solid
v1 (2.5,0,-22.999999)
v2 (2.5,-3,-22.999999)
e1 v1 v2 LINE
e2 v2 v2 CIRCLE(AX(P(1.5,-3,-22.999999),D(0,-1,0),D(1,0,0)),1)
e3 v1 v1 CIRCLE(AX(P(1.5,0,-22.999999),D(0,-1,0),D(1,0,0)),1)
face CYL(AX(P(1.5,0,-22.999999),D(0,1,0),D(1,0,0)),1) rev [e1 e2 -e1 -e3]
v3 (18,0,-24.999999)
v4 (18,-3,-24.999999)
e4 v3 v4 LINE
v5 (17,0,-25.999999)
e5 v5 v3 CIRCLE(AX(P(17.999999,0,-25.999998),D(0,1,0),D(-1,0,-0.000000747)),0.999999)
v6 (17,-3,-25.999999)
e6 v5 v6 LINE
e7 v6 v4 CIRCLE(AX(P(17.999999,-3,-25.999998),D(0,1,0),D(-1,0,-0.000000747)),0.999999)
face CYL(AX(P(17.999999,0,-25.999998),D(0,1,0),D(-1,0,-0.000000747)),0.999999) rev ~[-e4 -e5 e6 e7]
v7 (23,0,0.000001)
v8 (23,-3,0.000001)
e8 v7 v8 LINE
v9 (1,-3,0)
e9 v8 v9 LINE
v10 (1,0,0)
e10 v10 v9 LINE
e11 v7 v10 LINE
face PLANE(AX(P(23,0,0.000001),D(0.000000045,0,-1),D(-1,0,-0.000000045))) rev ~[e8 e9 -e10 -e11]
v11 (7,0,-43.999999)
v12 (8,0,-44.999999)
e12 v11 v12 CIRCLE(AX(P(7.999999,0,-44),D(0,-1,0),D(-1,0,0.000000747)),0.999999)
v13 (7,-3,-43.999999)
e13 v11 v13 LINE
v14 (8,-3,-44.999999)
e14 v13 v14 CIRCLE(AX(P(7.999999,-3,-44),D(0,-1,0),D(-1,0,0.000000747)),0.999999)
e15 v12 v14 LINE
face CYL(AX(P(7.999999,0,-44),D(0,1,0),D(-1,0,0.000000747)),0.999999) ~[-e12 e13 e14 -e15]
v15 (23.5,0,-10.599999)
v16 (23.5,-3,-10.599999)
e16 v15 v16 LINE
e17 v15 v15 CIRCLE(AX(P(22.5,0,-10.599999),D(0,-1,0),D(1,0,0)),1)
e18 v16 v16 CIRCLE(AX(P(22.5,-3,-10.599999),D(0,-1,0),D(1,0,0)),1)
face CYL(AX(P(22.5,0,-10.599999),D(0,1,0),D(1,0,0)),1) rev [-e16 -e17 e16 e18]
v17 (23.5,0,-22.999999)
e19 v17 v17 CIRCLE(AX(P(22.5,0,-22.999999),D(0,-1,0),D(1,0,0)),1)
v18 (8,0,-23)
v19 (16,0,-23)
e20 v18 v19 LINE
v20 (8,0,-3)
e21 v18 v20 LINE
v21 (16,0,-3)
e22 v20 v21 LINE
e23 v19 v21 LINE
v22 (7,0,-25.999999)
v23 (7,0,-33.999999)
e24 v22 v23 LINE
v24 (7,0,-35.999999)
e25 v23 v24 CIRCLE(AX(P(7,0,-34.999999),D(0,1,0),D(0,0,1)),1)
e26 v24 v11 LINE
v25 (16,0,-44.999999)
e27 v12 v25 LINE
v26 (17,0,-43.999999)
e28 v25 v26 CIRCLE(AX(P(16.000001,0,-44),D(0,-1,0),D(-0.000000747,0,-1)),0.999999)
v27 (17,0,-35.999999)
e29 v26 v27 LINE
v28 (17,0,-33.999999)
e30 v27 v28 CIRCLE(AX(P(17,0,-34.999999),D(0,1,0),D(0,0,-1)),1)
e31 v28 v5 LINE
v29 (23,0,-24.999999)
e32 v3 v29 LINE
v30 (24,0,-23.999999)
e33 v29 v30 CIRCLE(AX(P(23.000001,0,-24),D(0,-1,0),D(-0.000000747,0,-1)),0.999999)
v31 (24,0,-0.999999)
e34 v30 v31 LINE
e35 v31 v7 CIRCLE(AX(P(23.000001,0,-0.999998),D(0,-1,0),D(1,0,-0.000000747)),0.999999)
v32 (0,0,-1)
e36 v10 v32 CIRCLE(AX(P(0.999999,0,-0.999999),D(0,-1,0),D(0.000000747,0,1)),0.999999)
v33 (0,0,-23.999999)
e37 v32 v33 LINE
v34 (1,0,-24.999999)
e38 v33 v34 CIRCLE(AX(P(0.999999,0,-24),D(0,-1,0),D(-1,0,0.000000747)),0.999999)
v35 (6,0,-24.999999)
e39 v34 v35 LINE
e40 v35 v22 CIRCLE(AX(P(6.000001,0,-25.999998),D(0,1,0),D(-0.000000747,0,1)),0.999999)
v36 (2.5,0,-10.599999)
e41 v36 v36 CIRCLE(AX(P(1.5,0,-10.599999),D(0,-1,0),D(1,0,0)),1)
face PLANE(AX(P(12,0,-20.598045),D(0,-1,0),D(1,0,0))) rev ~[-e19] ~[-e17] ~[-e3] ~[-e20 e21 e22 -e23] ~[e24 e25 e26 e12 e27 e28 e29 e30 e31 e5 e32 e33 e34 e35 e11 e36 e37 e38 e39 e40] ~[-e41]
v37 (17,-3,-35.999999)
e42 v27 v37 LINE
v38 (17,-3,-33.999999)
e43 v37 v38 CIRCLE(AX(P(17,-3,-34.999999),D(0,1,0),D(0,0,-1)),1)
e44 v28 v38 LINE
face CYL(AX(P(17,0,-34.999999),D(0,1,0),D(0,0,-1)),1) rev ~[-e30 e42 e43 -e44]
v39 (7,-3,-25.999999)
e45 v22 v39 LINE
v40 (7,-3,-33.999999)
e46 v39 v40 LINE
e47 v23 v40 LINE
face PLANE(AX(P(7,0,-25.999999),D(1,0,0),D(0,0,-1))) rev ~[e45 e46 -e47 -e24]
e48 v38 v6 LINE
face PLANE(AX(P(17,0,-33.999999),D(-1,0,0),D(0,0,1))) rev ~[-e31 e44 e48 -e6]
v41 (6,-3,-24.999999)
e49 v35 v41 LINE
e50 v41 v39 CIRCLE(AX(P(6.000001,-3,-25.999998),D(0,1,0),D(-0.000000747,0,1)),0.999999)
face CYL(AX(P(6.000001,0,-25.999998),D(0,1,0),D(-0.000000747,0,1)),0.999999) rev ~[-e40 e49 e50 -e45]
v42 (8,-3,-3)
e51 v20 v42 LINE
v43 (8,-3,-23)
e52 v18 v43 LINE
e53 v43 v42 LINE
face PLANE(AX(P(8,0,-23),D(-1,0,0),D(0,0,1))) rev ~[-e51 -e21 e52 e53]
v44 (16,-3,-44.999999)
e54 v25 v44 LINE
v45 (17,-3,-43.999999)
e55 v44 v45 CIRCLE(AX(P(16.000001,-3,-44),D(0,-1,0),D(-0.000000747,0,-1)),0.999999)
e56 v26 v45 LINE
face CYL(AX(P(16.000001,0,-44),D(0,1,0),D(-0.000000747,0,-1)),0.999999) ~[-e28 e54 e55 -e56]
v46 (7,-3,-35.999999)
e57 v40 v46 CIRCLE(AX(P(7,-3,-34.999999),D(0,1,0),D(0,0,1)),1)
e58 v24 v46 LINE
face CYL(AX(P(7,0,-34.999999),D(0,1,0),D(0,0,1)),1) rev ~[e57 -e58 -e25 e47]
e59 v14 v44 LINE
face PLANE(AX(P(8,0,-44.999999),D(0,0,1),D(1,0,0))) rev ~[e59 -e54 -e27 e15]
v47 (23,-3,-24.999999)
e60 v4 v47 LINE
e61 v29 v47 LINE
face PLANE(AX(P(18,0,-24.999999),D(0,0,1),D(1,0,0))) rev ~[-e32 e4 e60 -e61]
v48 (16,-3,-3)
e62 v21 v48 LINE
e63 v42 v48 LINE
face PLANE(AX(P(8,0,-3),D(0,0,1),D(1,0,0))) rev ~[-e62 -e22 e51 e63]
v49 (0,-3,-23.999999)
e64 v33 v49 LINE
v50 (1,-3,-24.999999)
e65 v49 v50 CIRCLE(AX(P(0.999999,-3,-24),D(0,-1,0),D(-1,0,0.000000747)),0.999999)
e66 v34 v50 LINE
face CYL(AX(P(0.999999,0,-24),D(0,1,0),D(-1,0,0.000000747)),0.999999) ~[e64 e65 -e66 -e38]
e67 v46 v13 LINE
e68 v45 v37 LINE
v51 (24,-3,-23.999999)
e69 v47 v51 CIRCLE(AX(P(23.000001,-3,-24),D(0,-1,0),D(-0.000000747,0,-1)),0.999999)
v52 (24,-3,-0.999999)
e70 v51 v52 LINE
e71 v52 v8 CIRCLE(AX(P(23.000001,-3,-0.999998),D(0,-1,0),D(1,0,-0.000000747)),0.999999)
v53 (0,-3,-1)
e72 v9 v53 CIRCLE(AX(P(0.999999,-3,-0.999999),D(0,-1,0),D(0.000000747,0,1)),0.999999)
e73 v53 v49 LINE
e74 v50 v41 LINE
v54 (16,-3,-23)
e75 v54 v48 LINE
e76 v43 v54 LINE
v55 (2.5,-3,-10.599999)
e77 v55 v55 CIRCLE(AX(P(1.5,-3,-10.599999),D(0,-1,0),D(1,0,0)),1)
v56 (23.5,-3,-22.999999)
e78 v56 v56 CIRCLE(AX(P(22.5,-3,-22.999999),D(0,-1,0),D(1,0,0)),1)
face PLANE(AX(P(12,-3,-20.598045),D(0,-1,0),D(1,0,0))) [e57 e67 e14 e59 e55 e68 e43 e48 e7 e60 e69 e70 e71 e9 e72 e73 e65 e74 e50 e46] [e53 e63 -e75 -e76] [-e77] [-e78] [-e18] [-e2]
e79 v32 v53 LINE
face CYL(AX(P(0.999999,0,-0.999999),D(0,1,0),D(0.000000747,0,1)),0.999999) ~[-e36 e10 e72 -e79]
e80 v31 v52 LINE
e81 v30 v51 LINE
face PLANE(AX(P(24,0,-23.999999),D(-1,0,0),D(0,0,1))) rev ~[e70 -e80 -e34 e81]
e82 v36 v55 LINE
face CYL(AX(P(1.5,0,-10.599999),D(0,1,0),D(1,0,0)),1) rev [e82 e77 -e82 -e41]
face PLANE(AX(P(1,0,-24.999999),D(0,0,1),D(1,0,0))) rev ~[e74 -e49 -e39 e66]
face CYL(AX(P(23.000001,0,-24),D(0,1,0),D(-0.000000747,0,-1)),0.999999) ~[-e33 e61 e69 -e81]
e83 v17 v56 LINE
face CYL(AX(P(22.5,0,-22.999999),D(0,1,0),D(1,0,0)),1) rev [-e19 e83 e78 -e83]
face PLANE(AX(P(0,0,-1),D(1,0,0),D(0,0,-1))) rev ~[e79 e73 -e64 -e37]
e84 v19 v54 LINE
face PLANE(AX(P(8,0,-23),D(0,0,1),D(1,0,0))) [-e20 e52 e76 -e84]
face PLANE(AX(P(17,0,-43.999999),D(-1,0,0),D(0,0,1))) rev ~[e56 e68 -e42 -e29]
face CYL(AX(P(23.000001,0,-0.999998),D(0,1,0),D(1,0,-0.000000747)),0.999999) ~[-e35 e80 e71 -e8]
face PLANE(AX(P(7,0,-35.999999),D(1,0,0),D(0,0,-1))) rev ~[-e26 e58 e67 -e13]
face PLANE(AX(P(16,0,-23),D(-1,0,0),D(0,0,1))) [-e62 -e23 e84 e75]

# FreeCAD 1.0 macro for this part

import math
import FreeCAD as App
import Part
import Sketcher
from FreeCAD import Vector
Q = App.Units.Quantity


def add_polygon(sketch, points):
    """Adds a closed chain of lines whose ends are joined by coincident constraints."""
    first, n = sketch.GeometryCount, len(points)
    for a, b in zip(points, points[1:] + points[:1]):
        sketch.addGeometry(Part.LineSegment(App.Vector(*a, 0), App.Vector(*b, 0)), False)
    for i in range(n):
        sketch.addConstraint(Sketcher.Constraint("Coincident", first + i, 2, first + (i + 1) % n, 1))

doc = App.newDocument("Part")
body = doc.addObject("PartDesign::Body", "Body")

sketch1 = doc.addObject("Sketcher::SketchObject", "Sketch")
body.addObject(sketch1)
sketch1.AttachmentSupport = (doc.XZ_Plane, [""])
sketch1.MapMode = "FlatFace"
sketch1.addGeometry(Part.LineSegment(Vector(23, 0.000001, 0), Vector(1, 0, 0)), False)
sketch1.addGeometry(Part.ArcOfCircle(Part.Circle(Vector(0.999999, -0.999999, 0), Vector(0, 0, 1), 0.999999), math.radians(89.999957), math.radians(180.000043)), False)
sketch1.addGeometry(Part.LineSegment(Vector(0, -1, 0), Vector(0, -23.999999, 0)), False)
sketch1.addGeometry(Part.ArcOfCircle(Part.Circle(Vector(0.999999, -24, 0), Vector(0, 0, 1), 0.999999), math.radians(179.999957), math.radians(270.000043)), False)
sketch1.addGeometry(Part.LineSegment(Vector(1, -24.999999, 0), Vector(6, -24.999999, 0)), False)
sketch1.addGeometry(Part.ArcOfCircle(Part.Circle(Vector(6.000001, -25.999998, 0), Vector(0, 0, 1), 0.999999), math.radians(-0.000043), math.radians(90.000043)), False)
sketch1.addGeometry(Part.LineSegment(Vector(7, -25.999999, 0), Vector(7, -33.999999, 0)), False)
sketch1.addGeometry(Part.ArcOfCircle(Part.Circle(Vector(7, -34.999999, 0), Vector(0, 0, 1), 1), math.radians(-90), math.radians(90)), False)
sketch1.addGeometry(Part.LineSegment(Vector(7, -35.999999, 0), Vector(7, -43.999999, 0)), False)
sketch1.addGeometry(Part.ArcOfCircle(Part.Circle(Vector(7.999999, -44, 0), Vector(0, 0, 1), 0.999999), math.radians(179.999957), math.radians(270.000043)), False)
sketch1.addGeometry(Part.LineSegment(Vector(8, -44.999999, 0), Vector(16, -44.999999, 0)), False)
sketch1.addGeometry(Part.ArcOfCircle(Part.Circle(Vector(16.000001, -44, 0), Vector(0, 0, 1), 0.999999), math.radians(-90.000043), math.radians(0.000043)), False)
sketch1.addGeometry(Part.LineSegment(Vector(17, -43.999999, 0), Vector(17, -35.999999, 0)), False)
sketch1.addGeometry(Part.ArcOfCircle(Part.Circle(Vector(17, -34.999999, 0), Vector(0, 0, 1), 1), math.radians(90), math.radians(270)), False)
sketch1.addGeometry(Part.LineSegment(Vector(17, -33.999999, 0), Vector(17, -25.999999, 0)), False)
sketch1.addGeometry(Part.ArcOfCircle(Part.Circle(Vector(17.999999, -25.999998, 0), Vector(0, 0, 1), 0.999999), math.radians(89.999957), math.radians(180.000043)), False)
sketch1.addGeometry(Part.LineSegment(Vector(18, -24.999999, 0), Vector(23, -24.999999, 0)), False)
sketch1.addGeometry(Part.ArcOfCircle(Part.Circle(Vector(23.000001, -24, 0), Vector(0, 0, 1), 0.999999), math.radians(-90.000043), math.radians(0.000043)), False)
sketch1.addGeometry(Part.LineSegment(Vector(24, -23.999999, 0), Vector(24, -0.999999, 0)), False)
sketch1.addGeometry(Part.ArcOfCircle(Part.Circle(Vector(23.000001, -0.999998, 0), Vector(0, 0, 1), 0.999999), math.radians(-0.000043), math.radians(90.000043)), False)
sketch1.addGeometry(Part.Circle(Vector(1.5, -22.999999, 0), Vector(0, 0, 1), 1), False)
sketch1.addGeometry(Part.Circle(Vector(22.5, -22.999999, 0), Vector(0, 0, 1), 1), False)
sketch1.addGeometry(Part.Circle(Vector(1.5, -10.599999, 0), Vector(0, 0, 1), 1), False)
add_polygon(sketch1, [(16, -23), (8, -23), (8, -3), (16, -3)])
sketch1.addGeometry(Part.Circle(Vector(22.5, -10.599999, 0), Vector(0, 0, 1), 1), False)
sketch1.addConstraint([
    Sketcher.Constraint("Tangent", 0, 2, 1, 1),
    Sketcher.Constraint("Tangent", 1, 2, 2, 1),
    Sketcher.Constraint("Tangent", 2, 2, 3, 1),
    Sketcher.Constraint("Tangent", 3, 2, 4, 1),
    Sketcher.Constraint("Tangent", 4, 2, 5, 2),
    Sketcher.Constraint("Tangent", 5, 1, 6, 1),
    Sketcher.Constraint("Coincident", 6, 2, 7, 2),
    Sketcher.Constraint("Coincident", 7, 1, 8, 1),
    Sketcher.Constraint("Tangent", 8, 2, 9, 1),
    Sketcher.Constraint("Tangent", 9, 2, 10, 1),
    Sketcher.Constraint("Tangent", 10, 2, 11, 1),
    Sketcher.Constraint("Tangent", 11, 2, 12, 1),
    Sketcher.Constraint("Coincident", 12, 2, 13, 2),
    Sketcher.Constraint("Coincident", 13, 1, 14, 1),
    Sketcher.Constraint("Tangent", 14, 2, 15, 2),
    Sketcher.Constraint("Tangent", 15, 1, 16, 1),
    Sketcher.Constraint("Tangent", 16, 2, 17, 1),
    Sketcher.Constraint("Tangent", 17, 2, 18, 1),
    Sketcher.Constraint("Tangent", 18, 2, 19, 1),
    Sketcher.Constraint("Tangent", 19, 2, 0, 1),
    Sketcher.Constraint("Horizontal", 0),
    Sketcher.Constraint("Vertical", 2),
    Sketcher.Constraint("Horizontal", 4),
    Sketcher.Constraint("Vertical", 6),
    Sketcher.Constraint("Vertical", 8),
    Sketcher.Constraint("Horizontal", 10),
    Sketcher.Constraint("Vertical", 12),
    Sketcher.Constraint("Vertical", 14),
    Sketcher.Constraint("Horizontal", 16),
    Sketcher.Constraint("Vertical", 18),
    Sketcher.Constraint("Horizontal", 23),
    Sketcher.Constraint("Vertical", 24),
    Sketcher.Constraint("Horizontal", 25),
    Sketcher.Constraint("Vertical", 26),
    Sketcher.Constraint("Equal", 1, 3),
    Sketcher.Constraint("Equal", 3, 5),
    Sketcher.Constraint("Equal", 5, 7),
    Sketcher.Constraint("Equal", 7, 9),
    Sketcher.Constraint("Equal", 9, 11),
    Sketcher.Constraint("Equal", 11, 13),
    Sketcher.Constraint("Equal", 13, 15),
    Sketcher.Constraint("Equal", 15, 17),
    Sketcher.Constraint("Equal", 17, 19),
    Sketcher.Constraint("Equal", 19, 20),
    Sketcher.Constraint("Equal", 20, 21),
    Sketcher.Constraint("Equal", 21, 22),
    Sketcher.Constraint("Equal", 22, 27),
    Sketcher.Constraint("PointOnObject", 0, 2, -1),
    Sketcher.Constraint("PointOnObject", 1, 2, -2),
    Sketcher.Constraint("Horizontal", 7, 3, 13, 3),
    Sketcher.Constraint("Horizontal", 5, 3, 15, 3),
    Sketcher.Constraint("Horizontal", 20, 3, 21, 3),
    Sketcher.Constraint("Horizontal", 22, 3, 27, 3),
    Sketcher.Constraint("Horizontal", 21, 3, 23, 2),
    Sketcher.Constraint("Vertical", 20, 3, 22, 3),
    Sketcher.Constraint("Vertical", 21, 3, 27, 3),
    Sketcher.Constraint("Vertical", 7, 3, 5, 1),
    Sketcher.Constraint("Vertical", 6, 2, 7, 1),
    Sketcher.Constraint("Vertical", 13, 3, 11, 2),
    Sketcher.Constraint("Vertical", 12, 2, 13, 1),
    Sketcher.Constraint("Vertical", 9, 2, 23, 2),
    Sketcher.Constraint("Vertical", 10, 2, 25, 2),
    Sketcher.Constraint("Equal", 4, 16),
    Sketcher.Constraint("Equal", 25, 6),
    Sketcher.Constraint("Equal", 6, 8),
    Sketcher.Constraint("Diameter", 20, Q("2 mm")),
    Sketcher.Constraint("DistanceX", 0, 2, 0, 1, Q("22 mm")),
    Sketcher.Constraint("DistanceX", 4, 1, 4, 2, Q("5 mm")),
    Sketcher.Constraint("DistanceY", 2, 2, 2, 1, Q("22.999999 mm")),
    Sketcher.Constraint("DistanceY", 24, 1, 24, 2, Q("20 mm")),
    Sketcher.Constraint("DistanceY", 20, 3, -1, 1, Q("22.999999 mm")),
    Sketcher.Constraint("DistanceX", 22, 3, 27, 3, Q("21 mm")),
    Sketcher.Constraint("DistanceX", -1, 1, 20, 3, Q("1.5 mm")),
    Sketcher.Constraint("DistanceY", 22, 3, -1, 1, Q("10.599999 mm")),
])
pad1 = doc.addObject("PartDesign::Pad", "Pad")
body.addObject(pad1)
pad1.Profile = sketch1
pad1.Length = 3

doc.recompute()
